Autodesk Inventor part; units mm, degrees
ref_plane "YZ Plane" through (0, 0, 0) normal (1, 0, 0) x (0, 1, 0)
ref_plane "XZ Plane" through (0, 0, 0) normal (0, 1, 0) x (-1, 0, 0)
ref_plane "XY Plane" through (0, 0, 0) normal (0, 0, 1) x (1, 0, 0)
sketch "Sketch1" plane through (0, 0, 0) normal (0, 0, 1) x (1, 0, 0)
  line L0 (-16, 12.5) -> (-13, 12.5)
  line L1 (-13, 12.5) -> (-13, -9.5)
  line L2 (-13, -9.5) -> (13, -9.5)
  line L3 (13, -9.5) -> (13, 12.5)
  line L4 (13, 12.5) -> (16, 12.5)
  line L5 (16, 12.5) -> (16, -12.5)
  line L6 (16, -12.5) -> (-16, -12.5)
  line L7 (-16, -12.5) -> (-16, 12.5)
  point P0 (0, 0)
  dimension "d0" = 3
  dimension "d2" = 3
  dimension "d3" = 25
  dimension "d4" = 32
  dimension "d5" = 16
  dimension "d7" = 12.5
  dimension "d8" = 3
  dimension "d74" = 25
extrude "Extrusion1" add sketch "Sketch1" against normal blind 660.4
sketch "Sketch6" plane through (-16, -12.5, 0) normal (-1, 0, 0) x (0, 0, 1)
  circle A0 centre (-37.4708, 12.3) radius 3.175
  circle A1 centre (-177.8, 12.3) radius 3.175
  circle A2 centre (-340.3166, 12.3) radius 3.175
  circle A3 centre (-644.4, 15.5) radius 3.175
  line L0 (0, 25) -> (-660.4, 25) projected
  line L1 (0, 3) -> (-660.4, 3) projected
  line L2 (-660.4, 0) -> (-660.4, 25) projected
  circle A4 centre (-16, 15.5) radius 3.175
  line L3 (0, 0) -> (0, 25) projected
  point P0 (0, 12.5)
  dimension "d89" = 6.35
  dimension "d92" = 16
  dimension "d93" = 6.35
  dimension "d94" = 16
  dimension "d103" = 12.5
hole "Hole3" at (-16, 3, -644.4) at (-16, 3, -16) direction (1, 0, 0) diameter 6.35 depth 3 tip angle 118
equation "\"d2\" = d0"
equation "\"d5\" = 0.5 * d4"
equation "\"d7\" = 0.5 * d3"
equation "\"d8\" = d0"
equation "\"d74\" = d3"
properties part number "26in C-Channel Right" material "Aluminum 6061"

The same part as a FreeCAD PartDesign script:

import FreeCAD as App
import Part
import Sketcher

V = App.Vector


def add_polygon(sketch, points):
    """Adds a closed chain of lines whose ends are joined by coincident constraints."""
    first, n = sketch.GeometryCount, len(points)
    for a, b in zip(points, points[1:] + points[:1]):
        sketch.addGeometry(Part.LineSegment(App.Vector(*a, 0), App.Vector(*b, 0)), False)
    for i in range(n):
        sketch.addConstraint(Sketcher.Constraint("Coincident", first + i, 2, first + (i + 1) % n, 1))

doc = App.newDocument("Part")
params = doc.addObject("Spreadsheet::Sheet", "Params")
for row, (alias, value) in enumerate([
    ("sketch1_width", "3 mm"),
    ("sketch1_width2", "32 mm"),
    ("sketch1_height", "25 mm"),
    ("pad1_length", "660.4 mm"),
    ("sketch2_diameter", "6.35 mm"),
    ("hole_diameter", "6.35 mm"),
    ("hole_depth", "3 mm"),
], start=1):
    params.set(f"A{row}", alias)
    params.set(f"B{row}", "=" + value)
    params.setAlias(f"B{row}", alias)

body = doc.addObject("PartDesign::Body", "Body")

sketch1 = body.newObject("Sketcher::SketchObject", "Sketch")
sketch1.AttachmentSupport = (doc.getObject("XY_Plane"), [""])
sketch1.MapMode = "FlatFace"
add_polygon(sketch1, [(-13, 12.5), (-16, 12.5), (-16, -12.5), (16, -12.5), (16, 12.5), (13, 12.5), (13, -9.5), (-13, -9.5)])
sketch1.addConstraint([
    Sketcher.Constraint("Horizontal", 0),
    Sketcher.Constraint("Vertical", 1),
    Sketcher.Constraint("Horizontal", 2),
    Sketcher.Constraint("Vertical", 3),
    Sketcher.Constraint("Horizontal", 4),
    Sketcher.Constraint("Vertical", 5),
    Sketcher.Constraint("Horizontal", 6),
    Sketcher.Constraint("Vertical", 7),
    Sketcher.Constraint("Symmetric", 0, 2, 2, 2, -1, 1),
    Sketcher.Constraint("Symmetric", 4, 2, 7, 2, -2),
    Sketcher.Constraint("DistanceX", 0, 2, 0, 1, 3.0),
    Sketcher.Constraint("DistanceX", 2, 1, 2, 2, 32.0),
    Sketcher.Constraint("DistanceY", 1, 2, 1, 1, 25.0),
    Sketcher.Constraint("DistanceY", 2, 2, 5, 2, 3.0),
])
sketch1.setExpression("Constraints[18]", "Params.sketch1_width")
sketch1.setExpression("Constraints[19]", "Params.sketch1_width2")
sketch1.setExpression("Constraints[20]", "Params.sketch1_height")
pad1 = body.newObject("PartDesign::Pad", "Pad")
pad1.Profile = sketch1
pad1.setExpression("Length", "Params.pad1_length")
pad1.Reversed = True

sketch2 = body.newObject("Sketcher::SketchObject", "Sketch001")
sketch2.AttachmentSupport = (doc.getObject("YZ_Plane"), [""])
sketch2.MapMode = "FlatFace"
sketch2.AttachmentOffset = App.Placement(V(0, 0, -16), App.Rotation())
sketch2.addGeometry([
    Part.Circle(V(3, -644.4, 0), V(0, 0, 1), 3.175),
    Part.Circle(V(3, -16, 0), V(0, 0, 1), 3.175),
], False)
sketch2.addConstraint([
    Sketcher.Constraint("Equal", 0, 1),
    Sketcher.Constraint("Vertical", 0, 3, 1, 3),
    Sketcher.Constraint("Diameter", 0, 6.35),
    Sketcher.Constraint("DistanceX", -1, 1, 0, 3, 3.0),
    Sketcher.Constraint("DistanceY", 1, 3, -1, 1, 16.0),
    Sketcher.Constraint("DistanceY", 0, 3, -1, 1, 644.4),
])
sketch2.setExpression("Constraints[2]", "Params.sketch2_diameter")
doc.recompute()
hole = body.newObject("PartDesign::Hole", "Hole")
hole.Profile = sketch2
hole.ThreadType = "None"
hole.setExpression("Diameter", "Params.hole_diameter")
hole.DepthType = "Dimension"
hole.setExpression("Depth", "Params.hole_depth")
hole.DrillPoint = "Angled"
hole.DrillPointAngle = 118
hole.Reversed = True

doc.recompute()
